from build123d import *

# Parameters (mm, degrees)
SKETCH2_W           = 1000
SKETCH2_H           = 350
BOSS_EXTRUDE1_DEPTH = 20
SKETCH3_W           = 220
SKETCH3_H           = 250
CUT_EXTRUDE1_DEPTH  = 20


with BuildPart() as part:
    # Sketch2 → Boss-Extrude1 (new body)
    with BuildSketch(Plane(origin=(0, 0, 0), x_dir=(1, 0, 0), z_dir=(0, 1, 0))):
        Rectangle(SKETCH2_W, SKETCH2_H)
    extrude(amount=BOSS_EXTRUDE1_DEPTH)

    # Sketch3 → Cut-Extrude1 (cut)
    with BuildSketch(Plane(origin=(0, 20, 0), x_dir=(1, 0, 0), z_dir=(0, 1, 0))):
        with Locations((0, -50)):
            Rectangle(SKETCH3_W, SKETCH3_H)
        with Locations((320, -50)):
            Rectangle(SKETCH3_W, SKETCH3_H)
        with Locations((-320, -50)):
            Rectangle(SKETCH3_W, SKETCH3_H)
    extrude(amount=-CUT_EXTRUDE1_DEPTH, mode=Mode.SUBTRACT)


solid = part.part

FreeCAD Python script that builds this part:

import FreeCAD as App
import Part
import Sketcher
Q = App.Units.Quantity

doc = App.newDocument("Part")
params = doc.addObject("Spreadsheet::Sheet", "Params")
for row, (alias, value) in enumerate([
    ("sketch1_width", "1000 mm"),
    ("sketch1_height", "350 mm"),
    ("pad1_length", "20 mm"),
    ("sketch2_width", "220 mm"),
    ("sketch2_height", "250 mm"),
    ("pocket1_length", "20 mm"),
], start=1):
    params.set(f"A{row}", alias)
    params.set(f"B{row}", "=" + value)
    params.setAlias(f"B{row}", alias)

body = doc.addObject("PartDesign::Body", "Body")

sketch1 = body.newObject("Sketcher::SketchObject", "Sketch")
sketch1.AttachmentSupport = (doc.getObject("XZ_Plane"), [""])
sketch1.MapMode = "FlatFace"
sketch1.addGeometry(Part.LineSegment(App.Vector(-500, -175, 0), App.Vector(-500, 175, 0)), False)
sketch1.addGeometry(Part.LineSegment(App.Vector(-500, 175, 0), App.Vector(500, 175, 0)), False)
sketch1.addGeometry(Part.LineSegment(App.Vector(500, 175, 0), App.Vector(500, -175, 0)), False)
sketch1.addGeometry(Part.LineSegment(App.Vector(500, -175, 0), App.Vector(-500, -175, 0)), False)
sketch1.addConstraint(Sketcher.Constraint("Coincident", 0, 2, 1, 1))
sketch1.addConstraint(Sketcher.Constraint("Coincident", 1, 2, 2, 1))
sketch1.addConstraint(Sketcher.Constraint("Coincident", 2, 2, 3, 1))
sketch1.addConstraint(Sketcher.Constraint("Coincident", 3, 2, 0, 1))
sketch1.addConstraint(Sketcher.Constraint("Vertical", 0))
sketch1.addConstraint(Sketcher.Constraint("Horizontal", 1))
sketch1.addConstraint(Sketcher.Constraint("Vertical", 2))
sketch1.addConstraint(Sketcher.Constraint("Horizontal", 3))
sketch1.addConstraint(Sketcher.Constraint("Symmetric", 0, 2, 2, 2, -1, 1))
sketch1.addConstraint(Sketcher.Constraint("DistanceX", 1, 1, 1, 2, Q("1000 mm")))
sketch1.addConstraint(Sketcher.Constraint("DistanceY", 0, 1, 0, 2, Q("350 mm")))
sketch1.setExpression("Constraints[9]", "Params.sketch1_width")
sketch1.setExpression("Constraints[10]", "Params.sketch1_height")
pad1 = body.newObject("PartDesign::Pad", "Pad")
pad1.Profile = sketch1
pad1.setExpression("Length", "Params.pad1_length")
pad1.Reversed = True

sketch2 = body.newObject("Sketcher::SketchObject", "Sketch001")
sketch2.AttachmentSupport = (doc.getObject("XZ_Plane"), [""])
sketch2.MapMode = "FlatFace"
sketch2.AttachmentOffset = App.Placement(App.Vector(0, 0, -20), App.Rotation())
sketch2.addGeometry(Part.LineSegment(App.Vector(-110, -75, 0), App.Vector(-110, 175, 0)), False)
sketch2.addGeometry(Part.LineSegment(App.Vector(-110, 175, 0), App.Vector(110, 175, 0)), False)
sketch2.addGeometry(Part.LineSegment(App.Vector(110, 175, 0), App.Vector(110, -75, 0)), False)
sketch2.addGeometry(Part.LineSegment(App.Vector(110, -75, 0), App.Vector(-110, -75, 0)), False)
sketch2.addGeometry(Part.LineSegment(App.Vector(210, -75, 0), App.Vector(210, 175, 0)), False)
sketch2.addGeometry(Part.LineSegment(App.Vector(210, 175, 0), App.Vector(430, 175, 0)), False)
sketch2.addGeometry(Part.LineSegment(App.Vector(430, 175, 0), App.Vector(430, -75, 0)), False)
sketch2.addGeometry(Part.LineSegment(App.Vector(430, -75, 0), App.Vector(210, -75, 0)), False)
sketch2.addGeometry(Part.LineSegment(App.Vector(-430, -75, 0), App.Vector(-430, 175, 0)), False)
sketch2.addGeometry(Part.LineSegment(App.Vector(-430, 175, 0), App.Vector(-210, 175, 0)), False)
sketch2.addGeometry(Part.LineSegment(App.Vector(-210, 175, 0), App.Vector(-210, -75, 0)), False)
sketch2.addGeometry(Part.LineSegment(App.Vector(-210, -75, 0), App.Vector(-430, -75, 0)), False)
sketch2.addConstraint(Sketcher.Constraint("Coincident", 0, 2, 1, 1))
sketch2.addConstraint(Sketcher.Constraint("Coincident", 1, 2, 2, 1))
sketch2.addConstraint(Sketcher.Constraint("Coincident", 2, 2, 3, 1))
sketch2.addConstraint(Sketcher.Constraint("Coincident", 3, 2, 0, 1))
sketch2.addConstraint(Sketcher.Constraint("Coincident", 4, 2, 5, 1))
sketch2.addConstraint(Sketcher.Constraint("Coincident", 5, 2, 6, 1))
sketch2.addConstraint(Sketcher.Constraint("Coincident", 6, 2, 7, 1))
sketch2.addConstraint(Sketcher.Constraint("Coincident", 7, 2, 4, 1))
sketch2.addConstraint(Sketcher.Constraint("Coincident", 8, 2, 9, 1))
sketch2.addConstraint(Sketcher.Constraint("Coincident", 9, 2, 10, 1))
sketch2.addConstraint(Sketcher.Constraint("Coincident", 10, 2, 11, 1))
sketch2.addConstraint(Sketcher.Constraint("Coincident", 11, 2, 8, 1))
sketch2.addConstraint(Sketcher.Constraint("Vertical", 0))
sketch2.addConstraint(Sketcher.Constraint("Horizontal", 1))
sketch2.addConstraint(Sketcher.Constraint("Vertical", 2))
sketch2.addConstraint(Sketcher.Constraint("Horizontal", 3))
sketch2.addConstraint(Sketcher.Constraint("Vertical", 4))
sketch2.addConstraint(Sketcher.Constraint("Horizontal", 5))
sketch2.addConstraint(Sketcher.Constraint("Vertical", 6))
sketch2.addConstraint(Sketcher.Constraint("Horizontal", 7))
sketch2.addConstraint(Sketcher.Constraint("Vertical", 8))
sketch2.addConstraint(Sketcher.Constraint("Horizontal", 9))
sketch2.addConstraint(Sketcher.Constraint("Vertical", 10))
sketch2.addConstraint(Sketcher.Constraint("Horizontal", 11))
sketch2.addConstraint(Sketcher.Constraint("Symmetric", 5, 2, 8, 2, -2))
sketch2.addConstraint(Sketcher.Constraint("Symmetric", 7, 2, 10, 2, -2))
sketch2.addConstraint(Sketcher.Constraint("Horizontal", 1, 2, 4, 2))
sketch2.addConstraint(Sketcher.Constraint("Horizontal", 3, 2, 6, 2))
sketch2.addConstraint(Sketcher.Constraint("Equal", 3, 5))
sketch2.addConstraint(Sketcher.Constraint("DistanceX", 1, 1, 1, 2, Q("220 mm")))
sketch2.addConstraint(Sketcher.Constraint("DistanceY", 0, 1, 0, 2, Q("250 mm")))
sketch2.addConstraint(Sketcher.Constraint("DistanceX", 0, 2, -1, 1, Q("110 mm")))
sketch2.addConstraint(Sketcher.Constraint("DistanceY", -1, 1, 0, 2, Q("175 mm")))
sketch2.addConstraint(Sketcher.Constraint("DistanceX", -1, 1, 4, 2, Q("210 mm")))
sketch2.setExpression("Constraints[29]", "Params.sketch2_width")
sketch2.setExpression("Constraints[30]", "Params.sketch2_height")
pocket1 = body.newObject("PartDesign::Pocket", "Pocket")
pocket1.Profile = sketch2
pocket1.setExpression("Length", "Params.pocket1_length")
pocket1.Reversed = True

doc.recompute()
